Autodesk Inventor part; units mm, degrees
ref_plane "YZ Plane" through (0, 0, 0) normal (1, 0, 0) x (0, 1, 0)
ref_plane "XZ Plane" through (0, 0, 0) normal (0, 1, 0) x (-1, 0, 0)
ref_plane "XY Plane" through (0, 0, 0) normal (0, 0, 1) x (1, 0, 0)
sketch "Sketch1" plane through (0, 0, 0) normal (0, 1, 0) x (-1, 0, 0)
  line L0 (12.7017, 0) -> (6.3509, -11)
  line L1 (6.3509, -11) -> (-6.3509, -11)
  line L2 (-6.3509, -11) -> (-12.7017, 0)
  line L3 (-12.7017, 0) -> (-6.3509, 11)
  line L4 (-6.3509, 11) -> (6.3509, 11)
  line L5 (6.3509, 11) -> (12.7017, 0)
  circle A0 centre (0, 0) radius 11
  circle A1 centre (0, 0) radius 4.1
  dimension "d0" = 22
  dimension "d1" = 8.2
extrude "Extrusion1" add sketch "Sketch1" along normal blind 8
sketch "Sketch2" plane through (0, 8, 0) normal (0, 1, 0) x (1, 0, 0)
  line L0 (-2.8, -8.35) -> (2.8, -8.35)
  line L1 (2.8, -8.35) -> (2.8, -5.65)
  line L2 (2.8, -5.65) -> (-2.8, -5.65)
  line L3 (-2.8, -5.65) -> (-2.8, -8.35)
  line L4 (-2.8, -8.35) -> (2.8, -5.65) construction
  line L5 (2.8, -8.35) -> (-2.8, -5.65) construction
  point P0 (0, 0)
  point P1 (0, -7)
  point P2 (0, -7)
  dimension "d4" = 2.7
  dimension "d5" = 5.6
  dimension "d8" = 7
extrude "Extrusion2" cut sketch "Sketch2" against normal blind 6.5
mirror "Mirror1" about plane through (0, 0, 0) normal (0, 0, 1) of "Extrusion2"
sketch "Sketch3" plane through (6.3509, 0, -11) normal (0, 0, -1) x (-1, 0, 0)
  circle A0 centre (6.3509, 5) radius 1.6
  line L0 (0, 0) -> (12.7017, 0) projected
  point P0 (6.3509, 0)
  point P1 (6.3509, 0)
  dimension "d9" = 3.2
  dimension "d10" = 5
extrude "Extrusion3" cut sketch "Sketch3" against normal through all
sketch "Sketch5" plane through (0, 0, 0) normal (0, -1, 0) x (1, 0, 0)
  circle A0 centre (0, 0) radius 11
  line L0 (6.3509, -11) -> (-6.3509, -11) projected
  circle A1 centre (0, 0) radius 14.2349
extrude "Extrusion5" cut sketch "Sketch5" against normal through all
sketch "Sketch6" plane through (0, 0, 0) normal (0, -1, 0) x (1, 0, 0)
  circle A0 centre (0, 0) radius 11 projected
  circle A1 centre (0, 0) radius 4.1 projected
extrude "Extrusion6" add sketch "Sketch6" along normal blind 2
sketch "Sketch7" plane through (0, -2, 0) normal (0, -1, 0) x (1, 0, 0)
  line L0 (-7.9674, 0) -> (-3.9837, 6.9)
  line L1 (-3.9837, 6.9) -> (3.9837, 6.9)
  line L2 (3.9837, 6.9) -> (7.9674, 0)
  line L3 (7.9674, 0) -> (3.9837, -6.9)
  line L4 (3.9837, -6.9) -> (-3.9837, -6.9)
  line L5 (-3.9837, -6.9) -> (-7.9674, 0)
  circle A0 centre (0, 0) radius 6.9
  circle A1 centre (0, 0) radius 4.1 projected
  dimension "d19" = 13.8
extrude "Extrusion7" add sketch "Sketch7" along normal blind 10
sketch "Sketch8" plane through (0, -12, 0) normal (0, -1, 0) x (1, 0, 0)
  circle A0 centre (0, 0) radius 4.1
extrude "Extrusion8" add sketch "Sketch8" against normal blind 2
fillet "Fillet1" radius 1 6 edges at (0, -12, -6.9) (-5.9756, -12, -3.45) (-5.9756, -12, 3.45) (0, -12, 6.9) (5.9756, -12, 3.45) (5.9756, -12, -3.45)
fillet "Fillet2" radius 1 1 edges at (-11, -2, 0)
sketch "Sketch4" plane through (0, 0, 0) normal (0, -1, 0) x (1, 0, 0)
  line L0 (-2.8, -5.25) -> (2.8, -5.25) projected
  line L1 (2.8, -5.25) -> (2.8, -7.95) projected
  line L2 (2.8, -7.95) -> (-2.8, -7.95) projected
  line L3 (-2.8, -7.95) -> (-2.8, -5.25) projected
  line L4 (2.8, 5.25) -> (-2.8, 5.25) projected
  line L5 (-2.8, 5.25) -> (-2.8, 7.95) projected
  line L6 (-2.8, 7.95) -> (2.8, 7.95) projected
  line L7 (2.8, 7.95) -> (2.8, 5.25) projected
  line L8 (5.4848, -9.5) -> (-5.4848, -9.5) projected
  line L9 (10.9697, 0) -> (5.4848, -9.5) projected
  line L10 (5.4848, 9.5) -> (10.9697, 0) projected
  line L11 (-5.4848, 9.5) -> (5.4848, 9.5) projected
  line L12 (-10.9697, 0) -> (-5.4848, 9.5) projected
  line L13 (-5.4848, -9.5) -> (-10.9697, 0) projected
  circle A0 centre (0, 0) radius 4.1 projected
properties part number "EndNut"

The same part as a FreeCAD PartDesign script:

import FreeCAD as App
import Part
import Sketcher
Q = App.Units.Quantity


def edges_at(feature, points):
    """Names of the edges that pass closest to the given points."""
    edges = feature.Shape.Edges
    near = lambda p: min(range(len(edges)), key=lambda i: edges[i].distToShape(Part.Vertex(*p))[0])
    return sorted({f"Edge{near(p) + 1}" for p in points})

doc = App.newDocument("Part")
body = doc.addObject("PartDesign::Body", "Body")

# Sketch on XZ plane
sketch1 = body.newObject("Sketcher::SketchObject", "Sketch")
sketch1.AttachmentSupport = (doc.getObject("XZ_Plane"), [""])
sketch1.MapMode = "FlatFace"
sketch1.addGeometry([
    Part.LineSegment(App.Vector(-12.7017, 0, 0), App.Vector(-6.3509, 11, 0)),  # 0
    Part.LineSegment(App.Vector(-6.3509, 11, 0), App.Vector(6.3509, 11, 0)),  # 1
    Part.LineSegment(App.Vector(6.3509, 11, 0), App.Vector(12.7017, 0, 0)),  # 2
    Part.LineSegment(App.Vector(12.7017, 0, 0), App.Vector(6.3509, -11, 0)),  # 3
    Part.LineSegment(App.Vector(6.3509, -11, 0), App.Vector(-6.3509, -11, 0)),  # 4
    Part.LineSegment(App.Vector(-6.3509, -11, 0), App.Vector(-12.7017, 0, 0)),  # 5
    Part.Circle(App.Vector(0, 0, 0), App.Vector(0, 0, 1), 4.1),  # 6
], False)
sketch1.addConstraint([
    Sketcher.Constraint("Coincident", 0, 2, 1, 1),
    Sketcher.Constraint("Coincident", 1, 2, 2, 1),
    Sketcher.Constraint("Coincident", 2, 2, 3, 1),
    Sketcher.Constraint("Coincident", 3, 2, 4, 1),
    Sketcher.Constraint("Coincident", 4, 2, 5, 1),
    Sketcher.Constraint("Coincident", 5, 2, 0, 1),
    Sketcher.Constraint("Horizontal", 1),
    Sketcher.Constraint("Horizontal", 4),
    Sketcher.Constraint("Coincident", 6, 3, -1, 1),
    Sketcher.Constraint("Symmetric", 0, 2, 3, 2, -1, 1),
    Sketcher.Constraint("Symmetric", 2, 2, 5, 2, -1, 1),
    Sketcher.Constraint("PointOnObject", 2, 2, -1),
    Sketcher.Constraint("Parallel", 2, 5),
    Sketcher.Constraint("Vertical", 1, 2, 3, 2),
    Sketcher.Constraint("Diameter", 6, Q("8.2 mm")),
    Sketcher.Constraint("DistanceY", 3, 2, 1, 2, Q("22 mm")),
    Sketcher.Constraint("Angle", 0, Q("60.0002 deg")),
    Sketcher.Constraint("DistanceX", 1, 1, 1, 2, Q("12.7018 mm")),
])
pad1 = body.newObject("PartDesign::Pad", "Pad")
pad1.Profile = sketch1
pad1.Length = 8
pad1.Reversed = True

# Sketch on XZ plane
sketch2 = body.newObject("Sketcher::SketchObject", "Sketch001")
sketch2.AttachmentSupport = (doc.getObject("XZ_Plane"), [""])
sketch2.MapMode = "FlatFace"
sketch2.AttachmentOffset = App.Placement(App.Vector(0, 0, -8), App.Rotation())
sketch2.addGeometry([
    Part.LineSegment(App.Vector(-2.8, 5.65, 0), App.Vector(-2.8, 8.35, 0)),
    Part.LineSegment(App.Vector(-2.8, 8.35, 0), App.Vector(2.8, 8.35, 0)),
    Part.LineSegment(App.Vector(2.8, 8.35, 0), App.Vector(2.8, 5.65, 0)),
    Part.LineSegment(App.Vector(2.8, 5.65, 0), App.Vector(-2.8, 5.65, 0)),
], False)
sketch2.addConstraint([
    Sketcher.Constraint("Coincident", 0, 2, 1, 1),
    Sketcher.Constraint("Coincident", 1, 2, 2, 1),
    Sketcher.Constraint("Coincident", 2, 2, 3, 1),
    Sketcher.Constraint("Coincident", 3, 2, 0, 1),
    Sketcher.Constraint("Vertical", 0),
    Sketcher.Constraint("Horizontal", 1),
    Sketcher.Constraint("Vertical", 2),
    Sketcher.Constraint("Horizontal", 3),
    Sketcher.Constraint("DistanceX", 1, 1, 1, 2, Q("5.6 mm")),
    Sketcher.Constraint("DistanceY", 0, 1, 0, 2, Q("2.7 mm")),
    Sketcher.Constraint("DistanceX", 0, 2, -1, 1, Q("2.8 mm")),
    Sketcher.Constraint("DistanceY", -1, 1, 0, 2, Q("8.35 mm")),
])
pocket1 = body.newObject("PartDesign::Pocket", "Pocket")
pocket1.Profile = sketch2
pocket1.Length = 6.5
pocket1.Reversed = True
doc.recompute()

mirrored = body.newObject("PartDesign::Mirrored", "Mirrored")
mirrored.Originals = [pocket1]
mirrored.MirrorPlane = (doc.getObject("XY_Plane"), [""])
body.Tip = mirrored

# Sketch on XY plane
sketch3 = body.newObject("Sketcher::SketchObject", "Sketch002")
sketch3.AttachmentSupport = (doc.getObject("XY_Plane"), [""])
sketch3.MapMode = "FlatFace"
sketch3.AttachmentOffset = App.Placement(App.Vector(0, 0, -11), App.Rotation())
sketch3.addGeometry(Part.Circle(App.Vector(0, 5, 0), App.Vector(0, 0, 1), 1.6), False)
sketch3.addConstraint([
    Sketcher.Constraint("PointOnObject", 0, 3, -2),
    Sketcher.Constraint("Diameter", 0, Q("3.2 mm")),
    Sketcher.Constraint("DistanceY", -1, 1, 0, 3, Q("5 mm")),
])
pocket2 = body.newObject("PartDesign::Pocket", "Pocket001")
pocket2.Profile = sketch3
pocket2.Type = "ThroughAll"
pocket2.Reversed = True

# Sketch on XZ plane
sketch4 = body.newObject("Sketcher::SketchObject", "Sketch003")
sketch4.AttachmentSupport = (doc.getObject("XZ_Plane"), [""])
sketch4.MapMode = "FlatFace"
sketch4.addGeometry([
    Part.Circle(App.Vector(0, 0, 0), App.Vector(0, 0, 1), 14.2349),
    Part.Circle(App.Vector(0, 0, 0), App.Vector(0, 0, 1), 11),
], False)
sketch4.addConstraint([
    Sketcher.Constraint("Coincident", 0, 3, -1, 1),
    Sketcher.Constraint("Coincident", 1, 3, -1, 1),
    Sketcher.Constraint("Diameter", 1, Q("22 mm")),
    Sketcher.Constraint("Diameter", 0, Q("28.4698 mm")),
])
pocket3 = body.newObject("PartDesign::Pocket", "Pocket002")
pocket3.Profile = sketch4
pocket3.Type = "ThroughAll"

# Sketch on XZ plane
sketch5 = body.newObject("Sketcher::SketchObject", "Sketch004")
sketch5.AttachmentSupport = (doc.getObject("XZ_Plane"), [""])
sketch5.MapMode = "FlatFace"
sketch5.addGeometry([
    Part.Circle(App.Vector(0, 0, 0), App.Vector(0, 0, 1), 11),
    Part.Circle(App.Vector(0, 0, 0), App.Vector(0, 0, 1), 4.1),
], False)
sketch5.addConstraint([
    Sketcher.Constraint("Coincident", 0, 3, -1, 1),
    Sketcher.Constraint("Coincident", 1, 3, -1, 1),
    Sketcher.Constraint("Diameter", 0, Q("22 mm")),
    Sketcher.Constraint("Diameter", 1, Q("8.2 mm")),
])
pad2 = body.newObject("PartDesign::Pad", "Pad001")
pad2.Profile = sketch5
pad2.Length = 2

# Sketch on XZ plane
sketch6 = body.newObject("Sketcher::SketchObject", "Sketch005")
sketch6.AttachmentSupport = (doc.getObject("XZ_Plane"), [""])
sketch6.MapMode = "FlatFace"
sketch6.AttachmentOffset = App.Placement(App.Vector(0, 0, 2), App.Rotation())
sketch6.addGeometry([
    Part.LineSegment(App.Vector(-7.9674, 0, 0), App.Vector(-3.9837, -6.9, 0)),  # 0
    Part.LineSegment(App.Vector(-3.9837, -6.9, 0), App.Vector(3.9837, -6.9, 0)),  # 1
    Part.LineSegment(App.Vector(3.9837, -6.9, 0), App.Vector(7.9674, 0, 0)),  # 2
    Part.LineSegment(App.Vector(7.9674, 0, 0), App.Vector(3.9837, 6.9, 0)),  # 3
    Part.LineSegment(App.Vector(3.9837, 6.9, 0), App.Vector(-3.9837, 6.9, 0)),  # 4
    Part.LineSegment(App.Vector(-3.9837, 6.9, 0), App.Vector(-7.9674, 0, 0)),  # 5
    Part.Circle(App.Vector(0, 0, 0), App.Vector(0, 0, 1), 4.1),  # 6
], False)
sketch6.addConstraint([
    Sketcher.Constraint("Coincident", 0, 2, 1, 1),
    Sketcher.Constraint("Coincident", 1, 2, 2, 1),
    Sketcher.Constraint("Coincident", 2, 2, 3, 1),
    Sketcher.Constraint("Coincident", 3, 2, 4, 1),
    Sketcher.Constraint("Coincident", 4, 2, 5, 1),
    Sketcher.Constraint("Coincident", 5, 2, 0, 1),
    Sketcher.Constraint("Horizontal", 1),
    Sketcher.Constraint("Horizontal", 4),
    Sketcher.Constraint("Coincident", 6, 3, -1, 1),
    Sketcher.Constraint("Symmetric", 0, 2, 3, 2, -1, 1),
    Sketcher.Constraint("Symmetric", 2, 2, 5, 2, -1, 1),
    Sketcher.Constraint("PointOnObject", 2, 2, -1),
    Sketcher.Constraint("Parallel", 2, 5),
    Sketcher.Constraint("Vertical", 1, 2, 3, 2),
    Sketcher.Constraint("Diameter", 6, Q("8.2 mm")),
    Sketcher.Constraint("DistanceY", 1, 2, 3, 2, Q("13.8 mm")),
    Sketcher.Constraint("Angle", 0, Q("-60 deg")),
    Sketcher.Constraint("DistanceX", 1, 1, 1, 2, Q("7.9674 mm")),
])
pad3 = body.newObject("PartDesign::Pad", "Pad002")
pad3.Profile = sketch6
pad3.Length = 10

# Sketch on XZ plane
sketch7 = body.newObject("Sketcher::SketchObject", "Sketch006")
sketch7.AttachmentSupport = (doc.getObject("XZ_Plane"), [""])
sketch7.MapMode = "FlatFace"
sketch7.AttachmentOffset = App.Placement(App.Vector(0, 0, 12), App.Rotation())
sketch7.addGeometry(Part.Circle(App.Vector(0, 0, 0), App.Vector(0, 0, 1), 4.1), False)
sketch7.addConstraint([
    Sketcher.Constraint("Coincident", 0, 3, -1, 1),
    Sketcher.Constraint("Diameter", 0, Q("8.2 mm")),
])
pad4 = body.newObject("PartDesign::Pad", "Pad003")
pad4.Profile = sketch7
pad4.Length = 2
pad4.Reversed = True
doc.recompute()

fillet = body.newObject("PartDesign::Fillet", "Fillet")
fillet.Base = (pad4, edges_at(pad4, [
    (0, -12, -6.9),
    (-5.976, -12, -3.45),
    (-5.976, -12, 3.45),
    (0, -12, 6.9),
    (5.976, -12, 3.45),
    (5.976, -12, -3.45),
]))
fillet.Radius = 1
doc.recompute()

fillet2 = body.newObject("PartDesign::Fillet", "Fillet001")
fillet2.Base = (fillet, edges_at(fillet, [(-11, -2, 0)]))
fillet2.Radius = 1

doc.recompute()
